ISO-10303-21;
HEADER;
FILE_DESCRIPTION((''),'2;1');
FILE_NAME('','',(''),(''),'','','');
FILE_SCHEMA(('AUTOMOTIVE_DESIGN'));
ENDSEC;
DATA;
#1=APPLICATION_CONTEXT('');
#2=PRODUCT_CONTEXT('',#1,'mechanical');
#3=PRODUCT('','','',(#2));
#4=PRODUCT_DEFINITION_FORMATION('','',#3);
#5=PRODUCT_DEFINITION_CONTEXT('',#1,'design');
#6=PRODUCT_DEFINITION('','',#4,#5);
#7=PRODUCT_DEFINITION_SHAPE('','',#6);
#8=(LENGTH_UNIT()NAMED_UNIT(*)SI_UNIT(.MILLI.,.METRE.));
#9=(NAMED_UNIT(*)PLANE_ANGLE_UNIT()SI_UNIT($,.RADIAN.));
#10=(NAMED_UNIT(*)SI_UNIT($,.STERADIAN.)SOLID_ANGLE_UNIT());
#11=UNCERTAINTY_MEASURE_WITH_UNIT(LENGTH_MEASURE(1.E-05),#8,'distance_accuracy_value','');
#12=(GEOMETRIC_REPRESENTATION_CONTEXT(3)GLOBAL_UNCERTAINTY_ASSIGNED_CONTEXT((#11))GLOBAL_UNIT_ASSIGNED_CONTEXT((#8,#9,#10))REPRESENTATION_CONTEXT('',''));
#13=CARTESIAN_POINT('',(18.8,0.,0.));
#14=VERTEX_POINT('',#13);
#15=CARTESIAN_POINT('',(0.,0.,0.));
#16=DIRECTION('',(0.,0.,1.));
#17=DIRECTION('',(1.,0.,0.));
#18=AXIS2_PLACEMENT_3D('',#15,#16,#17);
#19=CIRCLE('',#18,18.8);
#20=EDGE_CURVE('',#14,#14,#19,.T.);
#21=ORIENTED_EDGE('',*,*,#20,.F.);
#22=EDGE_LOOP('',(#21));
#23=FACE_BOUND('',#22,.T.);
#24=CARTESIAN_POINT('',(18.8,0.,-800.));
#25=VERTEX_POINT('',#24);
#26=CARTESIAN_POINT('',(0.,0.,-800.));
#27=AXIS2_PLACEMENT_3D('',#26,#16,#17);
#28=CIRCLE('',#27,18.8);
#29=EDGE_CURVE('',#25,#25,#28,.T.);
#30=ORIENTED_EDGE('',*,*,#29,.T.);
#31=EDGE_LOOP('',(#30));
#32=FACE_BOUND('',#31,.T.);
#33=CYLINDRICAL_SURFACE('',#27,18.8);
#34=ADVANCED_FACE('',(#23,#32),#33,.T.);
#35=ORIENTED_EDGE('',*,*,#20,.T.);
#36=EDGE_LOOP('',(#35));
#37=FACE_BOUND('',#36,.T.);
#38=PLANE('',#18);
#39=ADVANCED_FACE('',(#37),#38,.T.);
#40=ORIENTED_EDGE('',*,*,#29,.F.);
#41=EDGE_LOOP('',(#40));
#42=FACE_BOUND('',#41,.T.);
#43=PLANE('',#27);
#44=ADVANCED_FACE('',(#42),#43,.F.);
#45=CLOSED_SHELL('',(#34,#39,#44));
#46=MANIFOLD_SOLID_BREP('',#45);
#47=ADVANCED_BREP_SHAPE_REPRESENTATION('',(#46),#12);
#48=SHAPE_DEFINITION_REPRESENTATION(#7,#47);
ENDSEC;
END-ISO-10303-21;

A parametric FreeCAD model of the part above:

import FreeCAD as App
import Part
import Sketcher

V = App.Vector
Q = App.Units.Quantity

doc = App.newDocument("Part")
params = doc.addObject("Spreadsheet::Sheet", "Params")
for row, (alias, value) in enumerate([
    ("sketch1_diameter", "37.6 mm"),
    ("pad1_length", "800 mm"),
], start=1):
    params.set(f"A{row}", alias)
    params.set(f"B{row}", "=" + value)
    params.setAlias(f"B{row}", alias)

body = doc.addObject("PartDesign::Body", "Body")

# Sketch on XY plane
sketch1 = doc.addObject("Sketcher::SketchObject", "Sketch")
body.addObject(sketch1)
sketch1.AttachmentSupport = (doc.XY_Plane, [""])
sketch1.MapMode = "FlatFace"
sketch1.addGeometry(Part.Circle(V(0, 0, 0), V(0, 0, 1), 19), False)
sketch1.addConstraint(Sketcher.Constraint("Coincident", 0, 3, -1, 1))
sketch1.addConstraint(Sketcher.Constraint("Diameter", 0, Q("37.6 mm")))
sketch1.setExpression("Constraints[1]", "Params.sketch1_diameter")
pad1 = doc.addObject("PartDesign::Pad", "Pad")
body.addObject(pad1)
pad1.Profile = sketch1
pad1.setExpression("Length", "Params.pad1_length")
pad1.Reversed = True

doc.recompute()
